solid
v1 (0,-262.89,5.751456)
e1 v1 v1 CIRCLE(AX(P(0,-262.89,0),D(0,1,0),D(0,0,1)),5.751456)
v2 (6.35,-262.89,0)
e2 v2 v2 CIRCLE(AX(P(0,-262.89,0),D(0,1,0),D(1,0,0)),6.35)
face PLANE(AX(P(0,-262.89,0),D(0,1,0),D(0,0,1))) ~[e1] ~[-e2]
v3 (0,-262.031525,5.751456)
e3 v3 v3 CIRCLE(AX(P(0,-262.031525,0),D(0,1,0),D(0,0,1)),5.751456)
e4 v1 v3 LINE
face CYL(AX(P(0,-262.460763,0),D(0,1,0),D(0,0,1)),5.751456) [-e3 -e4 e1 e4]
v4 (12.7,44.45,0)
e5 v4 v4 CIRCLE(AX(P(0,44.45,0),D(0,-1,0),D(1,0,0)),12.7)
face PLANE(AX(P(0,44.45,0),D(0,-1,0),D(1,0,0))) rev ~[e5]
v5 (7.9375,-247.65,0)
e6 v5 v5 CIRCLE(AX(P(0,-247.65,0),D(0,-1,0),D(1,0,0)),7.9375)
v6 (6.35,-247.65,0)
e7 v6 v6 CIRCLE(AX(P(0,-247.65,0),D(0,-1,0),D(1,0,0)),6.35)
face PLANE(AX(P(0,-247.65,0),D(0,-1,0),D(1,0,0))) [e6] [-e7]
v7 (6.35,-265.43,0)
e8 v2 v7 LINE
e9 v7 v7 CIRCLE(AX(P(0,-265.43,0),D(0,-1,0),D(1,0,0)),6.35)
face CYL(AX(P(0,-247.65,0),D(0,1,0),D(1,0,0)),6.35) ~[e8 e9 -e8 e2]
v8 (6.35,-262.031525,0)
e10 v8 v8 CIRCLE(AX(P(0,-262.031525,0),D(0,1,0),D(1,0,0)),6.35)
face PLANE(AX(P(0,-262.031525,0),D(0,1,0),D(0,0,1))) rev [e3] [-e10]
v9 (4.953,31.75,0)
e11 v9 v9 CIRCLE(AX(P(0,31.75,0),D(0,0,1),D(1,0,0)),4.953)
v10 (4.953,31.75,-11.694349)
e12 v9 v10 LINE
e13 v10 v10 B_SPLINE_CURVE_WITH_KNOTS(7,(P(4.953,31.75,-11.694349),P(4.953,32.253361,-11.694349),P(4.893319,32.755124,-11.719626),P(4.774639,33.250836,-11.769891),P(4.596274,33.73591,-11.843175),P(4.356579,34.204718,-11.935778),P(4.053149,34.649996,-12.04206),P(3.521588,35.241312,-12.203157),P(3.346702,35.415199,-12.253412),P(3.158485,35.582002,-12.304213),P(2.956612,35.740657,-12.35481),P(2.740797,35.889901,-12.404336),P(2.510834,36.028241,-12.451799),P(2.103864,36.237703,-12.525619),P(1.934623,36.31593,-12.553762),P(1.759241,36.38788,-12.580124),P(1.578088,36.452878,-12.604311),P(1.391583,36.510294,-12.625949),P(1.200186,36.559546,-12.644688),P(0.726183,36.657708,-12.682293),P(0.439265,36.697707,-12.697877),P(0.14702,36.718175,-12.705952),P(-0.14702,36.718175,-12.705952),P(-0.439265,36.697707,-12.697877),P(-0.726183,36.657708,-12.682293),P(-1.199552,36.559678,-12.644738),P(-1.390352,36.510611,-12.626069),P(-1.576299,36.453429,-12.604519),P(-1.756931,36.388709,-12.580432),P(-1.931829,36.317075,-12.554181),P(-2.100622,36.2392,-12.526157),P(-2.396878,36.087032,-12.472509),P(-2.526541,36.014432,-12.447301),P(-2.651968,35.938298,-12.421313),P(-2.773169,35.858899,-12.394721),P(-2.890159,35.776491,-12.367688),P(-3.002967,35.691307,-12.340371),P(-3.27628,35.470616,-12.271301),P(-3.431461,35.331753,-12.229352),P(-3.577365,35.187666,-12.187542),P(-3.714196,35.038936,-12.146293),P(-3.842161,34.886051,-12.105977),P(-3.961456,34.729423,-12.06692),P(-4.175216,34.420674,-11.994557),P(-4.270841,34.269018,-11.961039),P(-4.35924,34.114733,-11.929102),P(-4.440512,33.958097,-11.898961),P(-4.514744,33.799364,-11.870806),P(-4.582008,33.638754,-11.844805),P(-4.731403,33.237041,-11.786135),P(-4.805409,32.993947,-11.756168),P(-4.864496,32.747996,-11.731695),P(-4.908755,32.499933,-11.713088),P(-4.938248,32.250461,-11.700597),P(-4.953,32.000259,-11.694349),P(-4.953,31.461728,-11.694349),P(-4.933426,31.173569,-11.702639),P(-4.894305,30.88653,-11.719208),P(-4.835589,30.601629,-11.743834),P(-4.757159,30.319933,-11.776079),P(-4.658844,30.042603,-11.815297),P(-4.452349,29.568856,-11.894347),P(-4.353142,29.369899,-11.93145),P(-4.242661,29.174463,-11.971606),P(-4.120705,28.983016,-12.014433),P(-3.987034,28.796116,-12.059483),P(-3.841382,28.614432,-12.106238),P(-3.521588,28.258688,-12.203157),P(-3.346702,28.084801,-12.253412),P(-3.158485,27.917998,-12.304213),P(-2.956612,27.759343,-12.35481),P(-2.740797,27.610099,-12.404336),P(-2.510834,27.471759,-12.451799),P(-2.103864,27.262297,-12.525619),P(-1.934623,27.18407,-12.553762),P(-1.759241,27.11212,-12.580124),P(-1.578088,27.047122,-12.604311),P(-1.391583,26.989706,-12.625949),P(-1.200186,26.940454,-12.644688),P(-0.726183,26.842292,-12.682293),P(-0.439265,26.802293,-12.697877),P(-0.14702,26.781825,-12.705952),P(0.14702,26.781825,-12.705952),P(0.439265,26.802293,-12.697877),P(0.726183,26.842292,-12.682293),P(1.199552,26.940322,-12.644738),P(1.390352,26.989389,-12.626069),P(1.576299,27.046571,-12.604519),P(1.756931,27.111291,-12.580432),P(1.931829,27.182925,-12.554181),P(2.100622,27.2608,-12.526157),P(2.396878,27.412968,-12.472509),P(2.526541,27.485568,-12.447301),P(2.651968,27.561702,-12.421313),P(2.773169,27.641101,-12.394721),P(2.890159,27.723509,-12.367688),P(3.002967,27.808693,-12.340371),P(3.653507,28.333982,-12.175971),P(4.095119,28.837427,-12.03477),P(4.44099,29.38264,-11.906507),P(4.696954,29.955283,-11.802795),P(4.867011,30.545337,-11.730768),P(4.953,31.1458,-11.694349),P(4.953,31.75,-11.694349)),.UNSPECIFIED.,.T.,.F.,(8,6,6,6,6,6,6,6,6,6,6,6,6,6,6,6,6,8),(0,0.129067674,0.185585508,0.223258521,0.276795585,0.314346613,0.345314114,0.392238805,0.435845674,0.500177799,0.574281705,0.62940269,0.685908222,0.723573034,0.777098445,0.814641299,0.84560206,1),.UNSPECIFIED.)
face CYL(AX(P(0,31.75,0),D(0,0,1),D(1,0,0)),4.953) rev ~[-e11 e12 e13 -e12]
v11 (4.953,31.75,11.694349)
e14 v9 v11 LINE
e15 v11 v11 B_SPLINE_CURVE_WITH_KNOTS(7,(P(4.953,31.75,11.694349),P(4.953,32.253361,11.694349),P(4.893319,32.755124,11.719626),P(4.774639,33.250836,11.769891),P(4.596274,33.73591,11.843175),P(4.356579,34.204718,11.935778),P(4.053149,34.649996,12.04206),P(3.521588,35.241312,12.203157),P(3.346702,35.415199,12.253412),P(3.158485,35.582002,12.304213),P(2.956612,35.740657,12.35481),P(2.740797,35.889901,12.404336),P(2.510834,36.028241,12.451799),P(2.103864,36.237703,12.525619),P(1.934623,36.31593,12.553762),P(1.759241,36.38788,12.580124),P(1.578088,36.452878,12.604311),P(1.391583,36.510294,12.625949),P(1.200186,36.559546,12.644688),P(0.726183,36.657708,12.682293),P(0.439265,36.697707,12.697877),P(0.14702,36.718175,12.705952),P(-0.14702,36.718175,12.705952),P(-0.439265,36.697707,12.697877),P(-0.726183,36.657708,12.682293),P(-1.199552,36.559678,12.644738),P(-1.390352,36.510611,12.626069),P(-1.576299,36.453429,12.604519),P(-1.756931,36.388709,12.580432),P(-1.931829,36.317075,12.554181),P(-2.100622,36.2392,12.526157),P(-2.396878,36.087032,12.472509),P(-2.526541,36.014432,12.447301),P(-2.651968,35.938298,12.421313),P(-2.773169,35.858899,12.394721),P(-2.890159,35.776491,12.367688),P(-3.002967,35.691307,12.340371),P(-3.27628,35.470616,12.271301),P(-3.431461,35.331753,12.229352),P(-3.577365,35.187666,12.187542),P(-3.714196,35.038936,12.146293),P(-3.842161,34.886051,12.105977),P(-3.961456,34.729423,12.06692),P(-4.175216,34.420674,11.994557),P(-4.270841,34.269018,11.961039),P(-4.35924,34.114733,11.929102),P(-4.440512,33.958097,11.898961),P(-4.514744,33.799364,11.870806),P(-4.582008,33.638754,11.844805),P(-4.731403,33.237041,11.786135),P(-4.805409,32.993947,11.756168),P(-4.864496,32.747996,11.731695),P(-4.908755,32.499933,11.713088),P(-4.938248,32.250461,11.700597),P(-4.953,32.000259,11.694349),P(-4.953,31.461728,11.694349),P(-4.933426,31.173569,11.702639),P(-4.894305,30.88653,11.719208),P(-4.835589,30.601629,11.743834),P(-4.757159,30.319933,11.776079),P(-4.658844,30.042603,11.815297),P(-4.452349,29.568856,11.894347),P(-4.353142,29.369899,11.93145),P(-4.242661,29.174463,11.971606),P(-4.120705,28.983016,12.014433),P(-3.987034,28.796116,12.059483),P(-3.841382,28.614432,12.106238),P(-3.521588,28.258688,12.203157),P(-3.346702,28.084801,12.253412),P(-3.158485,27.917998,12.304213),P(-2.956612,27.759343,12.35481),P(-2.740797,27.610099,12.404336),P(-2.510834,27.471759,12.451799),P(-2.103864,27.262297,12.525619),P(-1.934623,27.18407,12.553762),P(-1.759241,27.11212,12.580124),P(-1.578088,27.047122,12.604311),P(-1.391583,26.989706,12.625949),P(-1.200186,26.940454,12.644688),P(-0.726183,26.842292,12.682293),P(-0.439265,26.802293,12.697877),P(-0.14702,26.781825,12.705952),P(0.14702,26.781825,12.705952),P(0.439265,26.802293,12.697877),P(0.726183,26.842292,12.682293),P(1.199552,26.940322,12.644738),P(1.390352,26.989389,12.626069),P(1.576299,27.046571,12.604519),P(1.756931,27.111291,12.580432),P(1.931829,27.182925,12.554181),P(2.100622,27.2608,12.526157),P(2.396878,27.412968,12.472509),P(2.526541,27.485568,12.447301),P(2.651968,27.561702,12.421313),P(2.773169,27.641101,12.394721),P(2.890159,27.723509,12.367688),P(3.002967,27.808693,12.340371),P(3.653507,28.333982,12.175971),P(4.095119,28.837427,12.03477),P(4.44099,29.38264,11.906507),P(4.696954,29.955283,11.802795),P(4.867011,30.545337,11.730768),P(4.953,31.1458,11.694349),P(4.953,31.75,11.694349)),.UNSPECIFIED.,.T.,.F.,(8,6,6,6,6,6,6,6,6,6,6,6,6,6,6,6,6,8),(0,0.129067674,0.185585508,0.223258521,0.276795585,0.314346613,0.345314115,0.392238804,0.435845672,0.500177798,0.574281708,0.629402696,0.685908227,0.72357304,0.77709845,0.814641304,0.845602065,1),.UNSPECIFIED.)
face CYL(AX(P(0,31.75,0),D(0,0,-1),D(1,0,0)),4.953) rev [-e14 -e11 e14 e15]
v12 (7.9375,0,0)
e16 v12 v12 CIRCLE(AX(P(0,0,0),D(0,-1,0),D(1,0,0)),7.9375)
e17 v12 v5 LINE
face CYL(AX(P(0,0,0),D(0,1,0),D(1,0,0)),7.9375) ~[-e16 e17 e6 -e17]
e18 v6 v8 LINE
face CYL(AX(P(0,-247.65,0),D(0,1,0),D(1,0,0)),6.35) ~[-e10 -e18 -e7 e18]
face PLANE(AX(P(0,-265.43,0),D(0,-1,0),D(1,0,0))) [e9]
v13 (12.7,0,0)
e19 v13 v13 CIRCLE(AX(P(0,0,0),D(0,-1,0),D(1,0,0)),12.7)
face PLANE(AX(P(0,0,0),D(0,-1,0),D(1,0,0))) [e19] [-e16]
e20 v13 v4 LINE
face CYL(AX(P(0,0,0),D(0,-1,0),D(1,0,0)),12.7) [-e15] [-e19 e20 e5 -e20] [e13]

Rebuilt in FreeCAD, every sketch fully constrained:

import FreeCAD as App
import Part
import Sketcher
from FreeCAD import Vector
Q = App.Units.Quantity

doc = App.newDocument("Part")
body = doc.addObject("PartDesign::Body", "Body")

# Sketch on XZ plane
sketch1 = body.newObject("Sketcher::SketchObject", "Sketch")
sketch1.AttachmentSupport = (doc.getObject("XZ_Plane"), [""])
sketch1.MapMode = "FlatFace"
sketch1.addGeometry(Part.Circle(Vector(0, 0, 0), Vector(0, 0, 1), 13), False)
sketch1.addConstraint([
    Sketcher.Constraint("Coincident", 0, 3, -1, 1),
    Sketcher.Constraint("Diameter", 0, Q("1 in")),
])
pad1 = body.newObject("PartDesign::Pad", "Pad")
pad1.Profile = sketch1
pad1.Length = Q("1.75 in")
pad1.Reversed = True

# Sketch on XZ plane
sketch2 = body.newObject("Sketcher::SketchObject", "Sketch001")
sketch2.AttachmentSupport = (doc.getObject("XZ_Plane"), [""])
sketch2.MapMode = "FlatFace"
sketch2.addGeometry(Part.Circle(Vector(0, 0, 0), Vector(0, 0, 1), 8), False)
sketch2.addConstraint([
    Sketcher.Constraint("Coincident", 0, 3, -1, 1),
    Sketcher.Constraint("Diameter", 0, Q("0.625 in")),
])
pad2 = body.newObject("PartDesign::Pad", "Pad001")
pad2.Profile = sketch2
pad2.Length = Q("9.75 in")

# Sketch on XZ plane
sketch3 = body.newObject("Sketcher::SketchObject", "Sketch002")
sketch3.AttachmentSupport = (doc.getObject("XZ_Plane"), [""])
sketch3.MapMode = "FlatFace"
sketch3.AttachmentOffset = App.Placement(Vector(0, 0, 9.75 * 25.4), App.Rotation())
sketch3.addGeometry(Part.Circle(Vector(0, 0, 0), Vector(0, 0, 1), 6), False)
sketch3.addConstraint([
    Sketcher.Constraint("Coincident", 0, 3, -1, 1),
    Sketcher.Constraint("Diameter", 0, Q("0.5 in")),
])
pad3 = body.newObject("PartDesign::Pad", "Pad002")
pad3.Profile = sketch3
pad3.Length = Q("0.7 in")

# Sketch on YZ plane
sketch4 = body.newObject("Sketcher::SketchObject", "Sketch003")
sketch4.AttachmentSupport = (doc.getObject("YZ_Plane"), [""])
sketch4.MapMode = "FlatFace"
sketch4.addGeometry([
    Part.LineSegment(Vector(-262.9, 7.2, 0), Vector(-262.9, 5.8, 0)),
    Part.LineSegment(Vector(-262.9, 5.8, 0), Vector(-262, 5.8, 0)),
    Part.LineSegment(Vector(-262, 5.8, 0), Vector(-262, 7.2, 0)),
    Part.LineSegment(Vector(-262, 7.2, 0), Vector(-262.9, 7.2, 0)),
], False)
sketch4.addConstraint([
    Sketcher.Constraint("Coincident", 0, 2, 1, 1),
    Sketcher.Constraint("Coincident", 1, 2, 2, 1),
    Sketcher.Constraint("Coincident", 2, 2, 3, 1),
    Sketcher.Constraint("Coincident", 3, 2, 0, 1),
    Sketcher.Constraint("Vertical", 0),
    Sketcher.Constraint("Horizontal", 1),
    Sketcher.Constraint("Vertical", 2),
    Sketcher.Constraint("Horizontal", 3),
    Sketcher.Constraint("DistanceX", 0, 2, -1, 1, Q("10.35 in")),
    Sketcher.Constraint("DistanceY", 0, 2, 0, 1, Q("1.479952 mm")),
    Sketcher.Constraint("DistanceX", 1, 1, 1, 2, Q("0.858475 mm")),
    Sketcher.Constraint("DistanceY", -1, 1, 0, 2, Q("5.751456 mm")),
])
groove = body.newObject("PartDesign::Groove", "Groove")
groove.Profile = sketch4
groove.ReferenceAxis = (sketch4, ["H_Axis"])
groove.Angle = 360

# Sketch on XY plane
sketch5 = body.newObject("Sketcher::SketchObject", "Sketch004")
sketch5.AttachmentSupport = (doc.getObject("XY_Plane"), [""])
sketch5.MapMode = "FlatFace"
sketch5.addGeometry(Part.Circle(Vector(0, 31.8, 0), Vector(0, 0, 1), 5), False)
sketch5.addConstraint([
    Sketcher.Constraint("PointOnObject", 0, 3, -2),
    Sketcher.Constraint("Diameter", 0, Q("0.39 in")),
    Sketcher.Constraint("DistanceY", -1, 1, 0, 3, Q("1.25 in")),
])
pocket1 = body.newObject("PartDesign::Pocket", "Pocket")
pocket1.Profile = sketch5
pocket1.Type = "ThroughAll"
pocket1.Midplane = True

doc.recompute()
